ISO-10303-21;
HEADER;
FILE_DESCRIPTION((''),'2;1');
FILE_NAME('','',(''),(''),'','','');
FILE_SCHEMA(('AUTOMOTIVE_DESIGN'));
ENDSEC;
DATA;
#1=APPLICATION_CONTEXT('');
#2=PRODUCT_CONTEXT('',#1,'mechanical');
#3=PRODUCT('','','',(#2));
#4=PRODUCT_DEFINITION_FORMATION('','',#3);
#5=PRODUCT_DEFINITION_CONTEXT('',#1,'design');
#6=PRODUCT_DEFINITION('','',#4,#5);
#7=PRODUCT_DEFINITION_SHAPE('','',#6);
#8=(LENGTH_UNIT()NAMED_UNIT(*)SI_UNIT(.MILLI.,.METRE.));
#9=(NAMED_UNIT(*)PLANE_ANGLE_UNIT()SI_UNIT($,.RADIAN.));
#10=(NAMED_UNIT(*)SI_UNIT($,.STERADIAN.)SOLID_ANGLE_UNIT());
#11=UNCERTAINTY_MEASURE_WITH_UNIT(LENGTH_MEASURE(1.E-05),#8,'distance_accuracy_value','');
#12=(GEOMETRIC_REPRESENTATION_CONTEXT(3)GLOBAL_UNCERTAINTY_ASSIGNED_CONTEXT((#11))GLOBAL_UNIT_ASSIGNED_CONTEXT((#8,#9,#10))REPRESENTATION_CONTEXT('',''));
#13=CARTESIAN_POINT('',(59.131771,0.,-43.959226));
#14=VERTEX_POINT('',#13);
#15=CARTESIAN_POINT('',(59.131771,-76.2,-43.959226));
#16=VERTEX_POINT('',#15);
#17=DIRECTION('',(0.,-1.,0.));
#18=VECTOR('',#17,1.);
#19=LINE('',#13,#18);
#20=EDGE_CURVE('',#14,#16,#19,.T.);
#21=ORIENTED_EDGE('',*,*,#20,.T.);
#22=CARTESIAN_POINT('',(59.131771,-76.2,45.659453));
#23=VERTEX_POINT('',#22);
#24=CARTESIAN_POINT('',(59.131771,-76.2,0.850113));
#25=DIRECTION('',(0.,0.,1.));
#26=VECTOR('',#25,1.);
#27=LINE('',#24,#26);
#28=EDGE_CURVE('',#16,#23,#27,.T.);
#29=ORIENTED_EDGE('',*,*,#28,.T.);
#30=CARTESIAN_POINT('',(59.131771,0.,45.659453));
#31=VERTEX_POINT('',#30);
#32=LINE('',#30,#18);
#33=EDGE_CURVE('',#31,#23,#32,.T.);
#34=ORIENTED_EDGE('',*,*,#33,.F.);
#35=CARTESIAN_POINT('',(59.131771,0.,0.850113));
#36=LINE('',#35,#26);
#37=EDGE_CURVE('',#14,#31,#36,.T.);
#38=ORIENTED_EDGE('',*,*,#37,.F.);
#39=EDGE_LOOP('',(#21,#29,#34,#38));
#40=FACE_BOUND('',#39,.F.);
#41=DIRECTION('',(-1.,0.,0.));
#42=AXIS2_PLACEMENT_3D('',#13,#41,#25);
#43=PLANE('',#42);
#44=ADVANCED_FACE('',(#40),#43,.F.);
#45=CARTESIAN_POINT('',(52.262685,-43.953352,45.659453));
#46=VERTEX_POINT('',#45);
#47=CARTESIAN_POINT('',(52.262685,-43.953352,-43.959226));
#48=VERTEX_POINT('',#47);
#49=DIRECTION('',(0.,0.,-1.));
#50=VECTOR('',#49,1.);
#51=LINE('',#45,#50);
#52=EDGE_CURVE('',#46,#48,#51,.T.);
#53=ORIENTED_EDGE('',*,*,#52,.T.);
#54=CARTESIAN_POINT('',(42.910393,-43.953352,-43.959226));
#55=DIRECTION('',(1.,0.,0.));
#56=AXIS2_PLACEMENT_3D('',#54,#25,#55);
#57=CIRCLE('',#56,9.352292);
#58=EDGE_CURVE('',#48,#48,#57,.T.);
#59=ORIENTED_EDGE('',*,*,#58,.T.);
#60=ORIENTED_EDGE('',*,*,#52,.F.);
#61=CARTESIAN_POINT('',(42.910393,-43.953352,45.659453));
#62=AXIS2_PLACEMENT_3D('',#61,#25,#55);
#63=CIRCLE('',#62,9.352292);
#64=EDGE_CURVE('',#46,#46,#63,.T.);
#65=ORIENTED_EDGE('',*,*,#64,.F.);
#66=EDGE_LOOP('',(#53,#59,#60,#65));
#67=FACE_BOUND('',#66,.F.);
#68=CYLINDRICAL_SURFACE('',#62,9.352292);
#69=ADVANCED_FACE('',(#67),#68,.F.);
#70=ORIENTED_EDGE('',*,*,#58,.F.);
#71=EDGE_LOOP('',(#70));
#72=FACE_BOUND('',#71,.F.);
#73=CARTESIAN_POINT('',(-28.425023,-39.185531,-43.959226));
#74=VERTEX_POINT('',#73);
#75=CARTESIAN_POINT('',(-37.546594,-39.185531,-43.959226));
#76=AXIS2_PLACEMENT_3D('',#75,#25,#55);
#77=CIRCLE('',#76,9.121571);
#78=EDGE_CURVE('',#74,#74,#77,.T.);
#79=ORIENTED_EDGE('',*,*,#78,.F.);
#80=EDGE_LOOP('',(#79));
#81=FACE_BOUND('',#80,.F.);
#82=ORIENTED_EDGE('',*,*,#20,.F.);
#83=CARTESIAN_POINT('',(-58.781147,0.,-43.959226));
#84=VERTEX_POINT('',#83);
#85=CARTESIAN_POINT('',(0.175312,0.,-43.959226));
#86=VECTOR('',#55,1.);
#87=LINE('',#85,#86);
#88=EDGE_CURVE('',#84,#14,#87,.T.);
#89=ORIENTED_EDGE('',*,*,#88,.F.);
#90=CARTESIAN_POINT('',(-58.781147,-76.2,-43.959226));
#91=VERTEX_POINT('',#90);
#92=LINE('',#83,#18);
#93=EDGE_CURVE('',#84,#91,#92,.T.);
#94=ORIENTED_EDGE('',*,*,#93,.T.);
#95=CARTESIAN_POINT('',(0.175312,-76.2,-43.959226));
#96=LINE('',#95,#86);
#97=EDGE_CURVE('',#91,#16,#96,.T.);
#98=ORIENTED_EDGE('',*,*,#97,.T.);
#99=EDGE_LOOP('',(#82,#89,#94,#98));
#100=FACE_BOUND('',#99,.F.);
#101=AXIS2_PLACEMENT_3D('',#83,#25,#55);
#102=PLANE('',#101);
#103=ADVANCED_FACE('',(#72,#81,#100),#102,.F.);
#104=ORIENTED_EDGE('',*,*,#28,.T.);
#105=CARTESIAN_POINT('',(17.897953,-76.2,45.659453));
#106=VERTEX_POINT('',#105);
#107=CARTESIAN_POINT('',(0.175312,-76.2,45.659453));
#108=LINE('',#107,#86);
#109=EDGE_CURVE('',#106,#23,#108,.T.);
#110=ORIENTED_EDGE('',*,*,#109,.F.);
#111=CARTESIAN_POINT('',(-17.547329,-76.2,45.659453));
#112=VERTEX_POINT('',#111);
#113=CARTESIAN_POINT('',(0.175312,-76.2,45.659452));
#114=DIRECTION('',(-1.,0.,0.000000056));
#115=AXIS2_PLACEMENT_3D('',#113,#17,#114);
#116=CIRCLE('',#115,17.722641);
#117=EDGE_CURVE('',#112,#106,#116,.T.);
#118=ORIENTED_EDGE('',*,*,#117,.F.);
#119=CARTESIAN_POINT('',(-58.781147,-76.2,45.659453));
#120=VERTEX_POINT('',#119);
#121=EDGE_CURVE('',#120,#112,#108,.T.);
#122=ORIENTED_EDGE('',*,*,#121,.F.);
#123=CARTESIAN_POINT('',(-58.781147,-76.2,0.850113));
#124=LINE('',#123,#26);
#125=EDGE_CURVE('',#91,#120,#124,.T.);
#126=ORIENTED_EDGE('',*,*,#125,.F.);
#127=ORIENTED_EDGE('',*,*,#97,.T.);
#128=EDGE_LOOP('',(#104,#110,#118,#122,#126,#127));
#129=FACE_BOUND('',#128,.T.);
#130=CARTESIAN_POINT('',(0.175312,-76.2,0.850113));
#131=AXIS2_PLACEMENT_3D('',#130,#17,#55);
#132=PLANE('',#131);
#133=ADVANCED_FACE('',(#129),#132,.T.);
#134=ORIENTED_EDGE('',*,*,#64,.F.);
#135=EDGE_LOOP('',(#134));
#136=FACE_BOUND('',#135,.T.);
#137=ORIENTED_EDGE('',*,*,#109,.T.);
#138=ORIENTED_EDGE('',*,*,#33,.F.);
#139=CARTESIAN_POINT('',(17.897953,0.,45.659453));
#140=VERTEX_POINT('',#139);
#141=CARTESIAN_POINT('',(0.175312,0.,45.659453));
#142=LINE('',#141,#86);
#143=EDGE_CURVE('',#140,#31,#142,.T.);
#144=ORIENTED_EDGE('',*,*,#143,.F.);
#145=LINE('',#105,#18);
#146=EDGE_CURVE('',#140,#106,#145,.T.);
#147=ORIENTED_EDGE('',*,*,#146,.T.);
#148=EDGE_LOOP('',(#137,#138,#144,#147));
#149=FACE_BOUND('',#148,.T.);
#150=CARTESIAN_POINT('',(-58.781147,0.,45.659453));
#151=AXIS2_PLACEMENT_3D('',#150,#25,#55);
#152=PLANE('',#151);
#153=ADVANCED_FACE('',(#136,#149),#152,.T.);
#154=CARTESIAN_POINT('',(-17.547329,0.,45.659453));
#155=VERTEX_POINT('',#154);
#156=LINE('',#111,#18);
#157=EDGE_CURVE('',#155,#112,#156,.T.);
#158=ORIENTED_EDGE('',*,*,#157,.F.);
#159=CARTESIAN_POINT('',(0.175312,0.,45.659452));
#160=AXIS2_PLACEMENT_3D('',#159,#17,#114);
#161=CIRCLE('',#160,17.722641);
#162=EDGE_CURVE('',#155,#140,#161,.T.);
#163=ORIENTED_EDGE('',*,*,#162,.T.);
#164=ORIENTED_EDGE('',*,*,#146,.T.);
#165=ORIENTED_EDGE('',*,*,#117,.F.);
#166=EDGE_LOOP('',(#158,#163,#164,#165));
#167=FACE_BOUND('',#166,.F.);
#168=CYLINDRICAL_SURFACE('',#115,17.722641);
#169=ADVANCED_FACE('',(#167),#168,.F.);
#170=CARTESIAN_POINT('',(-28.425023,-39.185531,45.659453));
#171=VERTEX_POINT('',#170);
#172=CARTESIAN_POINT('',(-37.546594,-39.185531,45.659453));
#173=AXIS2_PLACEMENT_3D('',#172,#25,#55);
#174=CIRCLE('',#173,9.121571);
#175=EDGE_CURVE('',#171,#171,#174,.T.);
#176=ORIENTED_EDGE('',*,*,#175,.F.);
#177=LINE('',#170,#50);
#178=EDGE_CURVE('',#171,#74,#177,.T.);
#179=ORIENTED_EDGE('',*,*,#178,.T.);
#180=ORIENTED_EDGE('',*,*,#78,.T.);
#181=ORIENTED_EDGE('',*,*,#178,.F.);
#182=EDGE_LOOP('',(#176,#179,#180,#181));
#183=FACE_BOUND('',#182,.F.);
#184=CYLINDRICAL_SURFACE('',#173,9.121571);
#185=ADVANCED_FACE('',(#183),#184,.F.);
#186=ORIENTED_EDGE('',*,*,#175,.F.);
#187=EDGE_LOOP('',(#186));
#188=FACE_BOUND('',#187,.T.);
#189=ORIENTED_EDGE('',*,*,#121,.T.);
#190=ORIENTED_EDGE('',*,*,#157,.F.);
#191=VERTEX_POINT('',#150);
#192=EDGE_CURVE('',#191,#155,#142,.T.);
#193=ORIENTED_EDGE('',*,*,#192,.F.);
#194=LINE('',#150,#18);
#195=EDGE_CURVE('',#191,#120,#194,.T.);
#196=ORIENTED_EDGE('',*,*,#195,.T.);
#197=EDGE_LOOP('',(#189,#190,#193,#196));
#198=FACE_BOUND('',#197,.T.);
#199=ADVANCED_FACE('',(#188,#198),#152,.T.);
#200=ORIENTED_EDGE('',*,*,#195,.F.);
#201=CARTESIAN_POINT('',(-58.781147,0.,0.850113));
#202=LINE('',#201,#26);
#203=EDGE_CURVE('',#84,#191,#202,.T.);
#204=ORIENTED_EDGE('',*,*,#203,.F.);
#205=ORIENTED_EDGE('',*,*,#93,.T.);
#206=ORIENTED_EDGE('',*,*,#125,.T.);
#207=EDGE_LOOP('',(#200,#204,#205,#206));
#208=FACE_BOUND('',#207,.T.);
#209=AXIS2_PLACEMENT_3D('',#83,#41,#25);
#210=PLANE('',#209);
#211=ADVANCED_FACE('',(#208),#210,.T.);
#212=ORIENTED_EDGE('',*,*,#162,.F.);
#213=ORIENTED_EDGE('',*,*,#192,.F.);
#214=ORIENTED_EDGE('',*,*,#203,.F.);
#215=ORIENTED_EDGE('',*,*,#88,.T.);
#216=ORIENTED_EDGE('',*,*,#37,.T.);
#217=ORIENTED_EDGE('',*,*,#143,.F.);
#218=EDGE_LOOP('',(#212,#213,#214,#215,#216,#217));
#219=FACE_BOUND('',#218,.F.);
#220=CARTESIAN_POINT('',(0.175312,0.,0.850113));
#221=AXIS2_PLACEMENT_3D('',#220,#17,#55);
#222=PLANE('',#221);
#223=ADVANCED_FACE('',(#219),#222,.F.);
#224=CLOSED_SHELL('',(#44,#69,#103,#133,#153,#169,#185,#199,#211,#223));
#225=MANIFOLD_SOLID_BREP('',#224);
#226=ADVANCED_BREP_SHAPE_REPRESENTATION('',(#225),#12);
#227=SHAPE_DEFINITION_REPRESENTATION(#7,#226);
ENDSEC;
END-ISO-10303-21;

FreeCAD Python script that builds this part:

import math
import FreeCAD as App
import Part
import Sketcher
Q = App.Units.Quantity

doc = App.newDocument("Part")
body = doc.addObject("PartDesign::Body", "Body")

sketch1 = body.newObject("Sketcher::SketchObject", "Sketch")
sketch1.AttachmentSupport = (doc.getObject("XZ_Plane"), [""])
sketch1.MapMode = "FlatFace"
sketch1.addGeometry(Part.LineSegment(App.Vector(-58.781147, 45.659453, 0), App.Vector(-58.781147, -43.959226, 0)), False)
sketch1.addGeometry(Part.LineSegment(App.Vector(-58.781147, -43.959226, 0), App.Vector(59.131771, -43.959226, 0)), False)
sketch1.addGeometry(Part.LineSegment(App.Vector(59.131771, -43.959226, 0), App.Vector(59.131771, 45.659453, 0)), False)
sketch1.addGeometry(Part.LineSegment(App.Vector(59.131771, 45.659453, 0), App.Vector(-58.781147, 45.659453, 0)), False)
sketch1.addConstraint(Sketcher.Constraint("Coincident", 0, 2, 1, 1))
sketch1.addConstraint(Sketcher.Constraint("Coincident", 1, 2, 2, 1))
sketch1.addConstraint(Sketcher.Constraint("Coincident", 2, 2, 3, 1))
sketch1.addConstraint(Sketcher.Constraint("Coincident", 3, 2, 0, 1))
sketch1.addConstraint(Sketcher.Constraint("Vertical", 0))
sketch1.addConstraint(Sketcher.Constraint("Horizontal", 1))
sketch1.addConstraint(Sketcher.Constraint("Vertical", 2))
sketch1.addConstraint(Sketcher.Constraint("Horizontal", 3))
sketch1.addConstraint(Sketcher.Constraint("DistanceY", 0, 2, 0, 1, Q("89.618679 mm")))
sketch1.addConstraint(Sketcher.Constraint("DistanceX", 1, 1, 1, 2, Q("117.912918 mm")))
sketch1.addConstraint(Sketcher.Constraint("DistanceX", -1, 1, 1, 2, Q("59.131771 mm")))
sketch1.addConstraint(Sketcher.Constraint("DistanceY", 0, 2, -1, 1, Q("43.959226 mm")))
pad1 = body.newObject("PartDesign::Pad", "Pad")
pad1.Profile = sketch1
pad1.Length = Q("3 in")

sketch2 = body.newObject("Sketcher::SketchObject", "Sketch001")
sketch2.AttachmentSupport = (doc.getObject("XY_Plane"), [""])
sketch2.MapMode = "FlatFace"
sketch2.AttachmentOffset = App.Placement(App.Vector(0, 0, 45.659453), App.Rotation())
sketch2.addGeometry(Part.Circle(App.Vector(-37.546594, -39.185531, 0), App.Vector(0, 0, 1), 9.121571), False)
sketch2.addConstraint(Sketcher.Constraint("Diameter", 0, Q("18.243142 mm")))
sketch2.addConstraint(Sketcher.Constraint("DistanceY", 0, 3, -1, 1, Q("39.185531 mm")))
sketch2.addConstraint(Sketcher.Constraint("DistanceX", 0, 3, -1, 1, Q("37.546594 mm")))
pocket1 = body.newObject("PartDesign::Pocket", "Pocket")
pocket1.Profile = sketch2
pocket1.Type = "ThroughAll"

sketch3 = body.newObject("Sketcher::SketchObject", "Sketch002")
sketch3.AttachmentSupport = (doc.getObject("XY_Plane"), [""])
sketch3.MapMode = "FlatFace"
sketch3.AttachmentOffset = App.Placement(App.Vector(0, 0, 45.659453), App.Rotation())
sketch3.addGeometry(Part.Circle(App.Vector(42.910393, -43.953352, 0), App.Vector(0, 0, 1), 9.352292), False)
sketch3.addConstraint(Sketcher.Constraint("Diameter", 0, Q("18.704584 mm")))
sketch3.addConstraint(Sketcher.Constraint("DistanceX", -1, 1, 0, 3, Q("42.910393 mm")))
sketch3.addConstraint(Sketcher.Constraint("DistanceY", 0, 3, -1, 1, Q("43.953352 mm")))
pocket2 = body.newObject("PartDesign::Pocket", "Pocket001")
pocket2.Profile = sketch3
pocket2.Type = "ThroughAll"

sketch4 = body.newObject("Sketcher::SketchObject", "Sketch003")
sketch4.AttachmentSupport = (doc.getObject("XZ_Plane"), [""])
sketch4.MapMode = "FlatFace"
sketch4.AttachmentOffset = App.Placement(App.Vector(0, 0, 3 * 25.4), App.Rotation())
sketch4.addGeometry(Part.ArcOfCircle(Part.Circle(App.Vector(0.175312, 45.659452, 0), App.Vector(0, 0, 1), 17.722641), math.radians(179.999997), math.radians(360.000003)), False)
sketch4.addGeometry(Part.LineSegment(App.Vector(17.897953, 45.659453, 0), App.Vector(-17.547329, 45.659453, 0)), False)
sketch4.addConstraint(Sketcher.Constraint("Coincident", 0, 1, 1, 2))
sketch4.addConstraint(Sketcher.Constraint("Coincident", 1, 1, 0, 2))
sketch4.addConstraint(Sketcher.Constraint("Horizontal", 1))
sketch4.addConstraint(Sketcher.Constraint("Radius", 0, Q("17.722641 mm")))
sketch4.addConstraint(Sketcher.Constraint("DistanceX", 0, 1, -1, 1, Q("17.547329 mm")))
sketch4.addConstraint(Sketcher.Constraint("DistanceY", -1, 1, 0, 3, Q("45.659452 mm")))
sketch4.addConstraint(Sketcher.Constraint("DistanceY", -1, 1, 0, 1, Q("45.659453 mm")))
pocket3 = body.newObject("PartDesign::Pocket", "Pocket002")
pocket3.Profile = sketch4
pocket3.Type = "ThroughAll"

doc.recompute()
